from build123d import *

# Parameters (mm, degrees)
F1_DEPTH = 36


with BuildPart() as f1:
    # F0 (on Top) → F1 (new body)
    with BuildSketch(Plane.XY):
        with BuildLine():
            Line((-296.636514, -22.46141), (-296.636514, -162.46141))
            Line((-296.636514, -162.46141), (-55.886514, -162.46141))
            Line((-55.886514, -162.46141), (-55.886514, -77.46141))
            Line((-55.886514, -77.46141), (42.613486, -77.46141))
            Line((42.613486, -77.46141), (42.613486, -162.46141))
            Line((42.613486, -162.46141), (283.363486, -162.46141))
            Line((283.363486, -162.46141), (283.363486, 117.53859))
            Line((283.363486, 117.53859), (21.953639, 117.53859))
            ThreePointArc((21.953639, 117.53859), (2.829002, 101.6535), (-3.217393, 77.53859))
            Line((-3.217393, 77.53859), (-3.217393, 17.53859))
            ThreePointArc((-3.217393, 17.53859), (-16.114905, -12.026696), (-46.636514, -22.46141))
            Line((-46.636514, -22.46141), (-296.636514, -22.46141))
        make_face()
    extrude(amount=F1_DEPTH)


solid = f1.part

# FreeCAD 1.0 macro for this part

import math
import FreeCAD as App
import Part
import Sketcher

V = App.Vector

doc = App.newDocument("Part")
body = doc.addObject("PartDesign::Body", "Body")

sketch1 = body.newObject("Sketcher::SketchObject", "Sketch")
sketch1.AttachmentSupport = (doc.getObject("XY_Plane"), [""])
sketch1.MapMode = "FlatFace"
sketch1.addGeometry([
    Part.LineSegment(V(-297, -22, 0), V(-297, -162, 0)),
    Part.LineSegment(V(-297, -162, 0), V(-56, -162, 0)),
    Part.LineSegment(V(-56, -162, 0), V(-56, -77, 0)),
    Part.LineSegment(V(-56, -77, 0), V(43, -77, 0)),
    Part.LineSegment(V(43, -77, 0), V(43, -162, 0)),
    Part.LineSegment(V(43, -162, 0), V(283, -162, 0)),
    Part.LineSegment(V(283, -162, 0), V(283, 118, 0)),
    Part.LineSegment(V(283, 118, 0), V(22, 118, 0)),
    Part.ArcOfCircle(Part.Circle(V(37, 80, 0), V(0, 0, 1), 40), math.radians(112), math.radians(184)),
    Part.LineSegment(V(-3, 78, 0), V(-3, 18, 0)),
    Part.ArcOfCircle(Part.Circle(V(-43, 17, 0), V(0, 0, 1), 40), math.radians(-95), math.radians(0)),
    Part.LineSegment(V(-47, -22, 0), V(-297, -22, 0)),
], False)
sketch1.addConstraint([
    Sketcher.Constraint("Coincident", 0, 2, 1, 1),
    Sketcher.Constraint("Coincident", 1, 2, 2, 1),
    Sketcher.Constraint("Coincident", 2, 2, 3, 1),
    Sketcher.Constraint("Coincident", 3, 2, 4, 1),
    Sketcher.Constraint("Coincident", 4, 2, 5, 1),
    Sketcher.Constraint("Coincident", 5, 2, 6, 1),
    Sketcher.Constraint("Coincident", 6, 2, 7, 1),
    Sketcher.Constraint("Coincident", 7, 2, 8, 1),
    Sketcher.Constraint("Coincident", 8, 2, 9, 1),
    Sketcher.Constraint("Coincident", 9, 2, 10, 2),
    Sketcher.Constraint("Coincident", 10, 1, 11, 1),
    Sketcher.Constraint("Coincident", 11, 2, 0, 1),
    Sketcher.Constraint("Vertical", 0),
    Sketcher.Constraint("Horizontal", 1),
    Sketcher.Constraint("Vertical", 2),
    Sketcher.Constraint("Horizontal", 3),
    Sketcher.Constraint("Vertical", 4),
    Sketcher.Constraint("Horizontal", 5),
    Sketcher.Constraint("Vertical", 6),
    Sketcher.Constraint("Horizontal", 7),
    Sketcher.Constraint("Vertical", 9),
    Sketcher.Constraint("Horizontal", 11),
    Sketcher.Constraint("Horizontal", 1, 2, 4, 2),
    Sketcher.Constraint("Equal", 1, 5),
    Sketcher.Constraint("Radius", 8, 39.999998),
    Sketcher.Constraint("Radius", 10, 40.000001),
    Sketcher.Constraint("DistanceX", 11, 2, 11, 1, 250.0),
    Sketcher.Constraint("DistanceY", 0, 2, 0, 1, 140.0),
    Sketcher.Constraint("DistanceY", 2, 1, 2, 2, 85.0),
    Sketcher.Constraint("DistanceY", 6, 1, 6, 2, 280.0),
    Sketcher.Constraint("DistanceY", 9, 2, 9, 1, 60.0),
    Sketcher.Constraint("DistanceX", 3, 1, 3, 2, 98.5),
    Sketcher.Constraint("DistanceY", 8, 2, 7, 2, 40.0),
    Sketcher.Constraint("DistanceX", 1, 1, 1, 2, 240.75),
    Sketcher.Constraint("DistanceX", 7, 2, 7, 1, 261.409847),
    Sketcher.Constraint("DistanceY", -1, 1, 8, 3, 80.349549),
    Sketcher.Constraint("DistanceY", -1, 1, 10, 3, 17.39217),
    Sketcher.Constraint("DistanceX", -1, 1, 7, 2, 21.953639),
])
pad1 = body.newObject("PartDesign::Pad", "Pad")
pad1.Profile = sketch1
pad1.Length = 36

doc.recompute()
